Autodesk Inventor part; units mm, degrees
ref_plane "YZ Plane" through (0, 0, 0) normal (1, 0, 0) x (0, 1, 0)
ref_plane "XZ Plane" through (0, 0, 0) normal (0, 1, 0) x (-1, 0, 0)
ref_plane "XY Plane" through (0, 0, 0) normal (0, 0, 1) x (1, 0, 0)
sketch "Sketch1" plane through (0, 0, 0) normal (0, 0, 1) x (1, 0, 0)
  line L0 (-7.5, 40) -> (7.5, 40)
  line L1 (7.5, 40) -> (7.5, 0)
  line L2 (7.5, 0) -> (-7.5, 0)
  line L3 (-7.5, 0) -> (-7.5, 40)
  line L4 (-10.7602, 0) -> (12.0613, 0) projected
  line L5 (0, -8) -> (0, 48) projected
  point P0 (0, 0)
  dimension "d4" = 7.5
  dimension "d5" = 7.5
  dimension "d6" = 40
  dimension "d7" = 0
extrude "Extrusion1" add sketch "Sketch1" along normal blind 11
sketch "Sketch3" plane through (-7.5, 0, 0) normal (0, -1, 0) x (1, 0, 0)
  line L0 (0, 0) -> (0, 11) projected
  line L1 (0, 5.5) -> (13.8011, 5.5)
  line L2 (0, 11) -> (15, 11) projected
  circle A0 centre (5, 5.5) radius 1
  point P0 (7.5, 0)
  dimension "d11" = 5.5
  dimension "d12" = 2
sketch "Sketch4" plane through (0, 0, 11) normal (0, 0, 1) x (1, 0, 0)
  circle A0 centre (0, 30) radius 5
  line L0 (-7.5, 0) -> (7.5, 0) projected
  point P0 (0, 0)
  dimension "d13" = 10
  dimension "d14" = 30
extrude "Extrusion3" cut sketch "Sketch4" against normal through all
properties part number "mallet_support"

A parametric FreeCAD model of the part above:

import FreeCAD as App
import Part
import Sketcher


def add_polygon(sketch, points):
    """Adds a closed chain of lines whose ends are joined by coincident constraints."""
    first, n = sketch.GeometryCount, len(points)
    for a, b in zip(points, points[1:] + points[:1]):
        sketch.addGeometry(Part.LineSegment(App.Vector(*a, 0), App.Vector(*b, 0)), False)
    for i in range(n):
        sketch.addConstraint(Sketcher.Constraint("Coincident", first + i, 2, first + (i + 1) % n, 1))

doc = App.newDocument("Part")
body = doc.addObject("PartDesign::Body", "Body")

sketch1 = body.newObject("Sketcher::SketchObject", "Sketch")
sketch1.AttachmentSupport = (doc.getObject("XY_Plane"), [""])
sketch1.MapMode = "FlatFace"
add_polygon(sketch1, [(-8, 40), (-8, 0), (8, 0), (8, 40)])
sketch1.addConstraint([
    Sketcher.Constraint("Vertical", 0),
    Sketcher.Constraint("Horizontal", 1),
    Sketcher.Constraint("Vertical", 2),
    Sketcher.Constraint("Horizontal", 3),
    Sketcher.Constraint("Symmetric", 0, 2, 1, 2, -1, 1),
    Sketcher.Constraint("DistanceY", 0, 2, 0, 1, 40.0),
    Sketcher.Constraint("DistanceX", 0, 2, -1, 1, 7.5),
])
pad1 = body.newObject("PartDesign::Pad", "Pad")
pad1.Profile = sketch1
pad1.Length = 11

sketch2 = body.newObject("Sketcher::SketchObject", "Sketch001")
sketch2.AttachmentSupport = (doc.getObject("XY_Plane"), [""])
sketch2.MapMode = "FlatFace"
sketch2.AttachmentOffset = App.Placement(App.Vector(0, 0, 11), App.Rotation())
sketch2.addGeometry(Part.Circle(App.Vector(0, 30, 0), App.Vector(0, 0, 1), 5), False)
sketch2.addConstraint([
    Sketcher.Constraint("PointOnObject", 0, 3, -2),
    Sketcher.Constraint("Diameter", 0, 10.0),
    Sketcher.Constraint("DistanceY", -1, 1, 0, 3, 30.0),
])
pocket1 = body.newObject("PartDesign::Pocket", "Pocket")
pocket1.Profile = sketch2
pocket1.Type = "ThroughAll"

doc.recompute()
